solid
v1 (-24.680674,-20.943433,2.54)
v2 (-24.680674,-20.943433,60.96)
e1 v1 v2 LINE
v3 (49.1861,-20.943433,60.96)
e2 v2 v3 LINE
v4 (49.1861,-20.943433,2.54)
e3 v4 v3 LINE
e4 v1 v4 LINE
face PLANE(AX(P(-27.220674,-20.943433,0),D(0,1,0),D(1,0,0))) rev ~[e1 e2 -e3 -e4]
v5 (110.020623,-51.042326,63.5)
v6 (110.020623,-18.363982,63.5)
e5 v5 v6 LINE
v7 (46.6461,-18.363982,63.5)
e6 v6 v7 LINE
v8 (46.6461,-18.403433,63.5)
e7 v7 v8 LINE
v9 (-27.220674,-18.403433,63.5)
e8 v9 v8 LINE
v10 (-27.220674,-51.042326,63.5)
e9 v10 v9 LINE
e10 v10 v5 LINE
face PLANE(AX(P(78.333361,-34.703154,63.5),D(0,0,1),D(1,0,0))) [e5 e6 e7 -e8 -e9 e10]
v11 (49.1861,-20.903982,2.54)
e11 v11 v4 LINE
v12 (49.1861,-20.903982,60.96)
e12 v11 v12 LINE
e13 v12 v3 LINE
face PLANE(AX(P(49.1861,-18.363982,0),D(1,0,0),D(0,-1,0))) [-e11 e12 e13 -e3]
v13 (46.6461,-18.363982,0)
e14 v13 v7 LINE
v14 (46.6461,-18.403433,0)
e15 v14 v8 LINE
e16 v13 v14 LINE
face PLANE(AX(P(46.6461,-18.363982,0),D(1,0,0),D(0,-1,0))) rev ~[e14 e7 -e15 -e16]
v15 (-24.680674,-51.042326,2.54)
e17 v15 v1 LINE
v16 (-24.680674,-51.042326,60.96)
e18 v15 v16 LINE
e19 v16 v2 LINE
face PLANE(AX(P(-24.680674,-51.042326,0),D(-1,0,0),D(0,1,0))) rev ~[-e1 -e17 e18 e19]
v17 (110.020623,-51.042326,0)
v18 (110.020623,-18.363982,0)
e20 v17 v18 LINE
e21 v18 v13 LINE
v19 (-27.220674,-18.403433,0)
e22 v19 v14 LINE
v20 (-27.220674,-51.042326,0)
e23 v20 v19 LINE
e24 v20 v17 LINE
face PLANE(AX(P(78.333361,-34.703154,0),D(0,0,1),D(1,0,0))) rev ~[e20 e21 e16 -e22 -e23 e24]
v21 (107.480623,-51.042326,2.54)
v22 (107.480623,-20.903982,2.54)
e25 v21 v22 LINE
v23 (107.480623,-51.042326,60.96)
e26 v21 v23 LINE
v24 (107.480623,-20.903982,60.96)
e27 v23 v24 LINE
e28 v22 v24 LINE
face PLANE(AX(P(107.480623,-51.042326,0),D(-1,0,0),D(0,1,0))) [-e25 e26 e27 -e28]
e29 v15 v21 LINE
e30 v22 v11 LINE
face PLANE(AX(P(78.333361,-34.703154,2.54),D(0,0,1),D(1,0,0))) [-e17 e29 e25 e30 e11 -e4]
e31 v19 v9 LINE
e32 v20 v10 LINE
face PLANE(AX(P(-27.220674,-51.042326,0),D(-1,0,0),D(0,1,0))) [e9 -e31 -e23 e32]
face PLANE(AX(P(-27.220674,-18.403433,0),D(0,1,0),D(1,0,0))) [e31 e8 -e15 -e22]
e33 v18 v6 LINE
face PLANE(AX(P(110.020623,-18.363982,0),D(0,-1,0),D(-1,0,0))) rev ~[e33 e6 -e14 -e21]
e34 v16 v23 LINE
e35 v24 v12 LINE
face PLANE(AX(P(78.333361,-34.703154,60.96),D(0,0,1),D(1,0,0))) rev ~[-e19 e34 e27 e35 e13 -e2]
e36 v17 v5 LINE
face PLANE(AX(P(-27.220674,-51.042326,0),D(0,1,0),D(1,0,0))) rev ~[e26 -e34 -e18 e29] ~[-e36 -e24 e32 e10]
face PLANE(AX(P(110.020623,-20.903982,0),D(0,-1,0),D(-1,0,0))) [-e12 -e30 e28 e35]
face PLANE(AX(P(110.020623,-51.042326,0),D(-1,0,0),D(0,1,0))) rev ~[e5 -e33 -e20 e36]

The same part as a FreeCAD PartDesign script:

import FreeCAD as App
import Part
import Sketcher
Q = App.Units.Quantity


def faces_at(feature, points):
    """Names of the faces that lie closest to the given points."""
    faces = feature.Shape.Faces
    near = lambda p: min(range(len(faces)), key=lambda i: faces[i].distToShape(Part.Vertex(*p))[0])
    return sorted({f"Face{near(p) + 1}" for p in points})


def add_polygon(sketch, points):
    """Adds a closed chain of lines whose ends are joined by coincident constraints."""
    first, n = sketch.GeometryCount, len(points)
    for a, b in zip(points, points[1:] + points[:1]):
        sketch.addGeometry(Part.LineSegment(App.Vector(*a, 0), App.Vector(*b, 0)), False)
    for i in range(n):
        sketch.addConstraint(Sketcher.Constraint("Coincident", first + i, 2, first + (i + 1) % n, 1))

doc = App.newDocument("Part")
params = doc.addObject("Spreadsheet::Sheet", "Params")
for row, (alias, value) in enumerate([
    ("pad1_length", "2.5 in"),
    ("thickness_wall", "0.1 in"),
], start=1):
    params.set(f"A{row}", alias)
    params.set(f"B{row}", "=" + value)
    params.setAlias(f"B{row}", alias)

body = doc.addObject("PartDesign::Body", "Body")

# Sketch on XY plane
sketch1 = body.newObject("Sketcher::SketchObject", "Sketch")
sketch1.AttachmentSupport = (doc.getObject("XY_Plane"), [""])
sketch1.MapMode = "FlatFace"
add_polygon(sketch1, [(110.020623, -51.042326), (110.020623, -18.363982), (46.6461, -18.363982), (46.6461, -18.403433), (-27.220674, -18.403433), (-27.220674, -51.042326)])  # lines 0-5
sketch1.addConstraint([
    Sketcher.Constraint("Vertical", 0),
    Sketcher.Constraint("Horizontal", 1),
    Sketcher.Constraint("Vertical", 2),
    Sketcher.Constraint("Horizontal", 3),
    Sketcher.Constraint("Vertical", 4),
    Sketcher.Constraint("Horizontal", 5),
    Sketcher.Constraint("DistanceY", 2, 2, 2, 1, Q("0.039451 mm")),
    Sketcher.Constraint("DistanceX", -1, 1, 1, 2, Q("46.6461 mm")),
    Sketcher.Constraint("DistanceX", 1, 2, 1, 1, Q("63.374523 mm")),
    Sketcher.Constraint("DistanceX", 3, 2, 3, 1, Q("73.866773 mm")),
    Sketcher.Constraint("DistanceY", 0, 1, 0, 2, Q("32.678343 mm")),
    Sketcher.Constraint("DistanceY", 0, 2, -1, 1, Q("18.363982 mm")),
])
pad1 = body.newObject("PartDesign::Pad", "Pad")
pad1.Profile = sketch1
pad1.setExpression("Length", "Params.pad1_length")
doc.recompute()

thickness = body.newObject("PartDesign::Thickness", "Thickness")
thickness.Base = (pad1, faces_at(pad1, [(41.4, -51.042, 31.75)]))
thickness.setExpression("Value", "Params.thickness_wall")
thickness.Reversed = True
thickness.Join = "Intersection"

doc.recompute()
